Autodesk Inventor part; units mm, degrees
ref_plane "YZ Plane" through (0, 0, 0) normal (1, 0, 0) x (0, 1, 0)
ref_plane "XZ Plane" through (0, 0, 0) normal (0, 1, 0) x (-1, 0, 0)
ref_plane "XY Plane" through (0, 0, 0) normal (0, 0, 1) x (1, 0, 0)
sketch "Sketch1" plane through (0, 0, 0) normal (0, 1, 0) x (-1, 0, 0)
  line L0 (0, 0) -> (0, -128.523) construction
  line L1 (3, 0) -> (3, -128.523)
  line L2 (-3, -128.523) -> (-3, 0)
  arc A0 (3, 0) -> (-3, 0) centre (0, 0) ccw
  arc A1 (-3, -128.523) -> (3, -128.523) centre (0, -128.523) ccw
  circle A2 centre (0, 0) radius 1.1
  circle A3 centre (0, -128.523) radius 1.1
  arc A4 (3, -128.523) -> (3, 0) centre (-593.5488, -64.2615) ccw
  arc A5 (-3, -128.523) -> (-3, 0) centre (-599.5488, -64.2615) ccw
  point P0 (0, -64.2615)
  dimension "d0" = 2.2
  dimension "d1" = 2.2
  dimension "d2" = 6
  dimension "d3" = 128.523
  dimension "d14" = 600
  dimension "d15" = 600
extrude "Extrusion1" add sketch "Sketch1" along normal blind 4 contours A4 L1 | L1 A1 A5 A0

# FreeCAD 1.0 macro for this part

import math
import FreeCAD as App
import Part
import Sketcher

V = App.Vector

doc = App.newDocument("Part")
body = doc.addObject("PartDesign::Body", "Body")

# Sketch on XZ plane
sketch1 = body.newObject("Sketcher::SketchObject", "Sketch")
sketch1.AttachmentSupport = (doc.getObject("XZ_Plane"), [""])
sketch1.MapMode = "FlatFace"
sketch1.addGeometry(Part.ArcOfCircle(Part.Circle(V(593.5488, -64.2615, 0), V(0, 0, 1), 600.000009), math.radians(173.851686), math.radians(186.148314)), False)
sketch1.addGeometry(Part.ArcOfCircle(Part.Circle(V(0, 0, 0), V(0, 0, 1), 3), math.radians(0), math.radians(180)), False)
sketch1.addGeometry(Part.ArcOfCircle(Part.Circle(V(599.5488, -64.2615, 0), V(0, 0, 1), 600.000009), math.radians(173.851686), math.radians(186.148314)), False)
sketch1.addGeometry(Part.ArcOfCircle(Part.Circle(V(0, -128.523, 0), V(0, 0, 1), 3), math.radians(180), math.radians(360)), False)
sketch1.addGeometry(Part.Circle(V(0, 0, 0), V(0, 0, 1), 1.1), False)
sketch1.addGeometry(Part.Circle(V(0, -128.523, 0), V(0, 0, 1), 1.1), False)
sketch1.addConstraint(Sketcher.Constraint("Coincident", 0, 1, 1, 2))
sketch1.addConstraint(Sketcher.Constraint("Coincident", 1, 1, 2, 1))
sketch1.addConstraint(Sketcher.Constraint("Coincident", 2, 2, 3, 2))
sketch1.addConstraint(Sketcher.Constraint("Coincident", 3, 1, 0, 2))
sketch1.addConstraint(Sketcher.Constraint("Coincident", 1, 3, -1, 1))
sketch1.addConstraint(Sketcher.Constraint("Coincident", 4, 3, -1, 1))
sketch1.addConstraint(Sketcher.Constraint("Coincident", 5, 3, 3, 3))
sketch1.addConstraint(Sketcher.Constraint("Equal", 0, 2))
sketch1.addConstraint(Sketcher.Constraint("Equal", 1, 3))
sketch1.addConstraint(Sketcher.Constraint("Equal", 4, 5))
sketch1.addConstraint(Sketcher.Constraint("Symmetric", 2, 2, 3, 1, -2))
sketch1.addConstraint(Sketcher.Constraint("PointOnObject", 0, 1, -1))
sketch1.addConstraint(Sketcher.Constraint("PointOnObject", 1, 1, -1))
sketch1.addConstraint(Sketcher.Constraint("Horizontal", 5, 3, 2, 2))
sketch1.addConstraint(Sketcher.Constraint("Radius", 0, 600.0))
sketch1.addConstraint(Sketcher.Constraint("Radius", 1, 3.0))
sketch1.addConstraint(Sketcher.Constraint("Diameter", 4, 2.2))
sketch1.addConstraint(Sketcher.Constraint("DistanceY", 3, 3, -1, 1, 128.523))
pad1 = body.newObject("PartDesign::Pad", "Pad")
pad1.Profile = sketch1
pad1.Length = 4
pad1.Reversed = True

doc.recompute()
